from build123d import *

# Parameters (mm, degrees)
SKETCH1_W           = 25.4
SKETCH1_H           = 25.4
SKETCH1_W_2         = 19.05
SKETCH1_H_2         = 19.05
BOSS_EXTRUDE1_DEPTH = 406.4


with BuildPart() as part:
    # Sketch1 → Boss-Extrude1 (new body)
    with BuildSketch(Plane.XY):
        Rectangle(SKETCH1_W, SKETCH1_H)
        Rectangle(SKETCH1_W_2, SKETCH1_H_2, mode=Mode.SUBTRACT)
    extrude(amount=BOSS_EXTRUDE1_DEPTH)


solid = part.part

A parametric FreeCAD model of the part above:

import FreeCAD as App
import Part
import Sketcher
Q = App.Units.Quantity


def add_polygon(sketch, points):
    """Adds a closed chain of lines whose ends are joined by coincident constraints."""
    first, n = sketch.GeometryCount, len(points)
    for a, b in zip(points, points[1:] + points[:1]):
        sketch.addGeometry(Part.LineSegment(App.Vector(*a, 0), App.Vector(*b, 0)), False)
    for i in range(n):
        sketch.addConstraint(Sketcher.Constraint("Coincident", first + i, 2, first + (i + 1) % n, 1))

doc = App.newDocument("Part")
params = doc.addObject("Spreadsheet::Sheet", "Params")
for row, (alias, value) in enumerate([
    ("sketch1_width", "1 in"),
    ("sketch1_width2", "0.75 in"),
    ("pad1_length", "16 in"),
], start=1):
    params.set(f"A{row}", alias)
    params.set(f"B{row}", "=" + value)
    params.setAlias(f"B{row}", alias)

body = doc.addObject("PartDesign::Body", "Body")

sketch1 = body.newObject("Sketcher::SketchObject", "Sketch")
sketch1.AttachmentSupport = (doc.getObject("XY_Plane"), [""])
sketch1.MapMode = "FlatFace"
add_polygon(sketch1, [(-13, 13), (-13, -13), (13, -13), (13, 13)])
add_polygon(sketch1, [(10, -10), (-10, -10), (-10, 10), (10, 10)])
sketch1.addConstraint(Sketcher.Constraint("Vertical", 0))
sketch1.addConstraint(Sketcher.Constraint("Horizontal", 1))
sketch1.addConstraint(Sketcher.Constraint("Vertical", 2))
sketch1.addConstraint(Sketcher.Constraint("Horizontal", 3))
sketch1.addConstraint(Sketcher.Constraint("Horizontal", 4))
sketch1.addConstraint(Sketcher.Constraint("Vertical", 5))
sketch1.addConstraint(Sketcher.Constraint("Horizontal", 6))
sketch1.addConstraint(Sketcher.Constraint("Vertical", 7))
sketch1.addConstraint(Sketcher.Constraint("Symmetric", 0, 2, 2, 2, -1, 1))
sketch1.addConstraint(Sketcher.Constraint("Symmetric", 4, 2, 6, 2, -1, 1))
sketch1.addConstraint(Sketcher.Constraint("Equal", 3, 0))
sketch1.addConstraint(Sketcher.Constraint("Equal", 6, 5))
sketch1.addConstraint(Sketcher.Constraint("DistanceX", 1, 1, 1, 2, Q("1 in")))
sketch1.addConstraint(Sketcher.Constraint("DistanceX", 4, 2, 4, 1, Q("0.75 in")))
sketch1.setExpression("Constraints[20]", "Params.sketch1_width")
sketch1.setExpression("Constraints[21]", "Params.sketch1_width2")
pad1 = body.newObject("PartDesign::Pad", "Pad")
pad1.Profile = sketch1
pad1.setExpression("Length", "Params.pad1_length")

doc.recompute()
